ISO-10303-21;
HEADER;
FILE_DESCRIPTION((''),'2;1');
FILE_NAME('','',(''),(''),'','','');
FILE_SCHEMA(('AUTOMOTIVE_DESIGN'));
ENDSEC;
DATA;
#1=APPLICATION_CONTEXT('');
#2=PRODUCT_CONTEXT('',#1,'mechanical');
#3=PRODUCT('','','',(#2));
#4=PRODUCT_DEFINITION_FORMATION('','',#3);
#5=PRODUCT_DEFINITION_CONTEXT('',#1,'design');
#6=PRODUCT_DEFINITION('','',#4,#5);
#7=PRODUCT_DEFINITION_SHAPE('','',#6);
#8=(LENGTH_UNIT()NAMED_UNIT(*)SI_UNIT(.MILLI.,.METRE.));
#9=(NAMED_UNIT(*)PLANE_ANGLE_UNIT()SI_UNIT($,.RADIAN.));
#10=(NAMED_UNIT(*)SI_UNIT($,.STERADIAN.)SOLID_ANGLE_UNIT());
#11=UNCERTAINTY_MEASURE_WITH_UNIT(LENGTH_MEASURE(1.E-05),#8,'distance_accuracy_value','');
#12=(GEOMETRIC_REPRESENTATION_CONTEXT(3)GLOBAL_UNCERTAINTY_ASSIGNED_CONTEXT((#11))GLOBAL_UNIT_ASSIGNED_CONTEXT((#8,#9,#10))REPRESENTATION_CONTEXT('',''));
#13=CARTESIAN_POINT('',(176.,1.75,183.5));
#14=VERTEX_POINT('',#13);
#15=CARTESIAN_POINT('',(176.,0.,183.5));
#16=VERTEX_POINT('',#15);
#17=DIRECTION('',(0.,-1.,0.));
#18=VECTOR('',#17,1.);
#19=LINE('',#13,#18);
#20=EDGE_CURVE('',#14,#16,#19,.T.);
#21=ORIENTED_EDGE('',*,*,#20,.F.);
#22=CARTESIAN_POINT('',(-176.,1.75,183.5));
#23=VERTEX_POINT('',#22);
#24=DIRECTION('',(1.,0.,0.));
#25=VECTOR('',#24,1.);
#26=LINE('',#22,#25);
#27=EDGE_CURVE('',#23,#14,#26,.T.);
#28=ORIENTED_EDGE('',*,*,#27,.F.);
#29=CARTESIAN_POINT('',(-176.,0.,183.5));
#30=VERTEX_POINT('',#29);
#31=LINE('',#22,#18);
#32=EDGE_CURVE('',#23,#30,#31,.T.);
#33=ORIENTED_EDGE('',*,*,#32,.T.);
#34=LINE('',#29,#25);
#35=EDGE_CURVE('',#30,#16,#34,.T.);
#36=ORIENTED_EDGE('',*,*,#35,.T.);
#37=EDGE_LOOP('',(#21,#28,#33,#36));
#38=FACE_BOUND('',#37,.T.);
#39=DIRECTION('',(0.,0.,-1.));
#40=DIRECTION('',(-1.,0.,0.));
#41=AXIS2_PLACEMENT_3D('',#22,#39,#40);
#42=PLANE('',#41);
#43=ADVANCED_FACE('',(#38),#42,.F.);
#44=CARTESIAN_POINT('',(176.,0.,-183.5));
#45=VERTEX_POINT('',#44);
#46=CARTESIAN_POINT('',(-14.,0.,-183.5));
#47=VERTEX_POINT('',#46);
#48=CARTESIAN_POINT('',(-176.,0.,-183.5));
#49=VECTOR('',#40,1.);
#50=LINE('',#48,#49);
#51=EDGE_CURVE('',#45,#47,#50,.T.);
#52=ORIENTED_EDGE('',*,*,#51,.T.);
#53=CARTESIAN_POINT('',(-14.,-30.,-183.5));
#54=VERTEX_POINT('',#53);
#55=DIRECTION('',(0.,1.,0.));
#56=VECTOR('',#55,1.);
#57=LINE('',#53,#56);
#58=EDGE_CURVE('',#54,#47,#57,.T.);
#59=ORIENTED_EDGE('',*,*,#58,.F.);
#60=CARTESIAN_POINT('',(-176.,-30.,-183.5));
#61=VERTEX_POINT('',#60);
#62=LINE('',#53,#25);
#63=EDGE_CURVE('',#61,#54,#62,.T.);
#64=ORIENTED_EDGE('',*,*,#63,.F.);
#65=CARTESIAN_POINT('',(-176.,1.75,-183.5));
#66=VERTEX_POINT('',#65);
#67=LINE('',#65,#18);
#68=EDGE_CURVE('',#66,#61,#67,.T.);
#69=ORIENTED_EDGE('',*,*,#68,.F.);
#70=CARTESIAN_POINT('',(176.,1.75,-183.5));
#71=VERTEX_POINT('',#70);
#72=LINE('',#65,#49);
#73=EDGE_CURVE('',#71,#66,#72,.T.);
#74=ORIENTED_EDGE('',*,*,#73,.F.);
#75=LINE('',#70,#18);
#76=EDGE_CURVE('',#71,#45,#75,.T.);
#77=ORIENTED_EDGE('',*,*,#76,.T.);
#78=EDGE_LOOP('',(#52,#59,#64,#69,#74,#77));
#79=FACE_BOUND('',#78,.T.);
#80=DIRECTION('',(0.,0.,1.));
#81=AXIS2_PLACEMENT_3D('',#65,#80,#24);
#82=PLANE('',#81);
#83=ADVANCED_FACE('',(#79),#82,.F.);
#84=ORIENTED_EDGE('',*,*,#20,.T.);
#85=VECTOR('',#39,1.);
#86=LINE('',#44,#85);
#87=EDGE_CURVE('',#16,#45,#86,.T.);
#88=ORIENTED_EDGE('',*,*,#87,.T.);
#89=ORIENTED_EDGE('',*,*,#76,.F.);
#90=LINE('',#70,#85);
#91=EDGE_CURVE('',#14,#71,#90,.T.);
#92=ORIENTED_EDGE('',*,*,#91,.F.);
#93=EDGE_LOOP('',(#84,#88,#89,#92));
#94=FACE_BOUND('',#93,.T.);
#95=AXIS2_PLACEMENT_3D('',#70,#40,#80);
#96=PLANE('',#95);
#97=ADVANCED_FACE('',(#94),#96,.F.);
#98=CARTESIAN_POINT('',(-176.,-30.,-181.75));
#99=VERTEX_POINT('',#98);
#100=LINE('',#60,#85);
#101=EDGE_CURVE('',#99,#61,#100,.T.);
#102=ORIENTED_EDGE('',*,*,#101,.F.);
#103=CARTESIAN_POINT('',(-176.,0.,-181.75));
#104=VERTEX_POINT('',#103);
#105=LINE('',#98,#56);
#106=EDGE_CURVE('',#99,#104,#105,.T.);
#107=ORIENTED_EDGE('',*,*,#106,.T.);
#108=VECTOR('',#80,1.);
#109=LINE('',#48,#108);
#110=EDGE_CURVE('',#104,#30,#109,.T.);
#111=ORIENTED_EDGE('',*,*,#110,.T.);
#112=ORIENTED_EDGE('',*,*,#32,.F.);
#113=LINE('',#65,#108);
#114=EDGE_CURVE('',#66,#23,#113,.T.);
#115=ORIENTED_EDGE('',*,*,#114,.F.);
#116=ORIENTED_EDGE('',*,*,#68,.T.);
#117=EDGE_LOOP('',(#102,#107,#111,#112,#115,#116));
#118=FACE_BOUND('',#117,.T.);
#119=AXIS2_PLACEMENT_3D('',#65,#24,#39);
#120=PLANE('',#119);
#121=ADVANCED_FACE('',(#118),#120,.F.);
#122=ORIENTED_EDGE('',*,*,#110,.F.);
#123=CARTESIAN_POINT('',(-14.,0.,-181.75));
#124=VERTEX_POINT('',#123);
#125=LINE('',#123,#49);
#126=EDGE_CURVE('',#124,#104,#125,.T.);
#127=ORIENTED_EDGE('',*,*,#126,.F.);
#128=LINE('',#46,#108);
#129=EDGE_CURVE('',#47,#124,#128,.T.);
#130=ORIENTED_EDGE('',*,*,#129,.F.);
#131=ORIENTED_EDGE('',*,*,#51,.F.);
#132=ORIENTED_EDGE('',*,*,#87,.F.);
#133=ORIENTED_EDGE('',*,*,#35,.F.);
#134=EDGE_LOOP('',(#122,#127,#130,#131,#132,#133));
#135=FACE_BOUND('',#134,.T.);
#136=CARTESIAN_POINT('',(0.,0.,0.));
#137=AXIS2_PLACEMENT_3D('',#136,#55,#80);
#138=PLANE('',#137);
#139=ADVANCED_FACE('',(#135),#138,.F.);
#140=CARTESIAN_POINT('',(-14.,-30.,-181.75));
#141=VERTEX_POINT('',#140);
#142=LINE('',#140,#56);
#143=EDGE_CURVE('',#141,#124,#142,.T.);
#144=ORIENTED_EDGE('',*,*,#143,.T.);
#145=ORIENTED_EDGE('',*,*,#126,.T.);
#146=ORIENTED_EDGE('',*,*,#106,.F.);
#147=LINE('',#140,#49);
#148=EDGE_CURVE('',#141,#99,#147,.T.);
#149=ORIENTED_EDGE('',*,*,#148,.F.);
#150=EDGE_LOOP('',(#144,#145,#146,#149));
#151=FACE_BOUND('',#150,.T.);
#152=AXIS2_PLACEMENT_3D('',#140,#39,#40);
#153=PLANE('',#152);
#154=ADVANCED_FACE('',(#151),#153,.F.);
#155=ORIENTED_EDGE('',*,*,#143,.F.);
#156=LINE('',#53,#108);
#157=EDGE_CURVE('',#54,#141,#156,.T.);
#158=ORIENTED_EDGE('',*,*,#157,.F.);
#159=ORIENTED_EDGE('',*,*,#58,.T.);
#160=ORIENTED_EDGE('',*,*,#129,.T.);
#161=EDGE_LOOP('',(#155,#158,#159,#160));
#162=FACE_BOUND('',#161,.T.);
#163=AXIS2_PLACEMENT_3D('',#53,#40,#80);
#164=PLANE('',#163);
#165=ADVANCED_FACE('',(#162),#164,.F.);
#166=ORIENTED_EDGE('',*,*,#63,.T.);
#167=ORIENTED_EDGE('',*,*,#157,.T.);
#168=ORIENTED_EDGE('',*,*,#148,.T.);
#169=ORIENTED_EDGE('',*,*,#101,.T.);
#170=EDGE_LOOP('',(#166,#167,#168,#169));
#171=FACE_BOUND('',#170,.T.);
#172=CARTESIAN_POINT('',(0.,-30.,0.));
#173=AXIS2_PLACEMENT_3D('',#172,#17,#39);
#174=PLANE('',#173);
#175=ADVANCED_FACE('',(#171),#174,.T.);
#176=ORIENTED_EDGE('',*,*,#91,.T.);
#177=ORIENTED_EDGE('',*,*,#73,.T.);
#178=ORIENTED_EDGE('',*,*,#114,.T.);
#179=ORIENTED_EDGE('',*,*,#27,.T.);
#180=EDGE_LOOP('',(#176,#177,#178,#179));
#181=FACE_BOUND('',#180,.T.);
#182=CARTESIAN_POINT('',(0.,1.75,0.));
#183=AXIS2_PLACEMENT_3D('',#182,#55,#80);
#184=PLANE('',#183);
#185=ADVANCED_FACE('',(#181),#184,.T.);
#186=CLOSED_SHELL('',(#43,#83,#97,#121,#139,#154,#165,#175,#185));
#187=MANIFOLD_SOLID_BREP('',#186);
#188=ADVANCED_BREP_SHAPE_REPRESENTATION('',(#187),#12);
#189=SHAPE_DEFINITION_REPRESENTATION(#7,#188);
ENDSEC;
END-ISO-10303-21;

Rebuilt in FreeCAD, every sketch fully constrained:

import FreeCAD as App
import Part
import Sketcher


def add_polygon(sketch, points):
    """Adds a closed chain of lines whose ends are joined by coincident constraints."""
    first, n = sketch.GeometryCount, len(points)
    for a, b in zip(points, points[1:] + points[:1]):
        sketch.addGeometry(Part.LineSegment(App.Vector(*a, 0), App.Vector(*b, 0)), False)
    for i in range(n):
        sketch.addConstraint(Sketcher.Constraint("Coincident", first + i, 2, first + (i + 1) % n, 1))

doc = App.newDocument("Part")
body = doc.addObject("PartDesign::Body", "Body")

# Sketch on XZ plane
sketch1 = doc.addObject("Sketcher::SketchObject", "Sketch")
body.addObject(sketch1)
sketch1.AttachmentSupport = (doc.XZ_Plane, [""])
sketch1.MapMode = "FlatFace"
add_polygon(sketch1, [(-176, -184), (-176, 184), (176, 184), (176, -184)])  # lines 0-3
sketch1.addConstraint([
    Sketcher.Constraint("Vertical", 0),
    Sketcher.Constraint("Horizontal", 1),
    Sketcher.Constraint("Vertical", 2),
    Sketcher.Constraint("Horizontal", 3),
    Sketcher.Constraint("Symmetric", 0, 2, 2, 2, -1, 1),
    Sketcher.Constraint("DistanceX", 1, 1, 1, 2, 352.0),
    Sketcher.Constraint("DistanceY", 0, 1, 0, 2, 367.0),
])
pad1 = doc.addObject("PartDesign::Pad", "Pad")
body.addObject(pad1)
pad1.Profile = sketch1
pad1.Length = 1.75
pad1.Reversed = True

# Sketch on XZ plane
sketch2 = doc.addObject("Sketcher::SketchObject", "Sketch001")
body.addObject(sketch2)
sketch2.AttachmentSupport = (doc.XZ_Plane, [""])
sketch2.MapMode = "FlatFace"
add_polygon(sketch2, [(-176, -181.8), (-176, -183.5), (-14, -183.5), (-14, -181.8)])  # lines 0-3
sketch2.addConstraint([
    Sketcher.Constraint("Vertical", 0),
    Sketcher.Constraint("Horizontal", 1),
    Sketcher.Constraint("Vertical", 2),
    Sketcher.Constraint("Horizontal", 3),
    Sketcher.Constraint("DistanceX", 1, 1, 1, 2, 162.0),
    Sketcher.Constraint("DistanceX", 0, 2, -1, 1, 176.0),
    Sketcher.Constraint("DistanceY", 0, 2, 0, 1, 1.75),
    Sketcher.Constraint("DistanceY", 0, 2, -1, 1, 183.5),
])
pad2 = doc.addObject("PartDesign::Pad", "Pad001")
body.addObject(pad2)
pad2.Profile = sketch2
pad2.Length = 30

doc.recompute()
